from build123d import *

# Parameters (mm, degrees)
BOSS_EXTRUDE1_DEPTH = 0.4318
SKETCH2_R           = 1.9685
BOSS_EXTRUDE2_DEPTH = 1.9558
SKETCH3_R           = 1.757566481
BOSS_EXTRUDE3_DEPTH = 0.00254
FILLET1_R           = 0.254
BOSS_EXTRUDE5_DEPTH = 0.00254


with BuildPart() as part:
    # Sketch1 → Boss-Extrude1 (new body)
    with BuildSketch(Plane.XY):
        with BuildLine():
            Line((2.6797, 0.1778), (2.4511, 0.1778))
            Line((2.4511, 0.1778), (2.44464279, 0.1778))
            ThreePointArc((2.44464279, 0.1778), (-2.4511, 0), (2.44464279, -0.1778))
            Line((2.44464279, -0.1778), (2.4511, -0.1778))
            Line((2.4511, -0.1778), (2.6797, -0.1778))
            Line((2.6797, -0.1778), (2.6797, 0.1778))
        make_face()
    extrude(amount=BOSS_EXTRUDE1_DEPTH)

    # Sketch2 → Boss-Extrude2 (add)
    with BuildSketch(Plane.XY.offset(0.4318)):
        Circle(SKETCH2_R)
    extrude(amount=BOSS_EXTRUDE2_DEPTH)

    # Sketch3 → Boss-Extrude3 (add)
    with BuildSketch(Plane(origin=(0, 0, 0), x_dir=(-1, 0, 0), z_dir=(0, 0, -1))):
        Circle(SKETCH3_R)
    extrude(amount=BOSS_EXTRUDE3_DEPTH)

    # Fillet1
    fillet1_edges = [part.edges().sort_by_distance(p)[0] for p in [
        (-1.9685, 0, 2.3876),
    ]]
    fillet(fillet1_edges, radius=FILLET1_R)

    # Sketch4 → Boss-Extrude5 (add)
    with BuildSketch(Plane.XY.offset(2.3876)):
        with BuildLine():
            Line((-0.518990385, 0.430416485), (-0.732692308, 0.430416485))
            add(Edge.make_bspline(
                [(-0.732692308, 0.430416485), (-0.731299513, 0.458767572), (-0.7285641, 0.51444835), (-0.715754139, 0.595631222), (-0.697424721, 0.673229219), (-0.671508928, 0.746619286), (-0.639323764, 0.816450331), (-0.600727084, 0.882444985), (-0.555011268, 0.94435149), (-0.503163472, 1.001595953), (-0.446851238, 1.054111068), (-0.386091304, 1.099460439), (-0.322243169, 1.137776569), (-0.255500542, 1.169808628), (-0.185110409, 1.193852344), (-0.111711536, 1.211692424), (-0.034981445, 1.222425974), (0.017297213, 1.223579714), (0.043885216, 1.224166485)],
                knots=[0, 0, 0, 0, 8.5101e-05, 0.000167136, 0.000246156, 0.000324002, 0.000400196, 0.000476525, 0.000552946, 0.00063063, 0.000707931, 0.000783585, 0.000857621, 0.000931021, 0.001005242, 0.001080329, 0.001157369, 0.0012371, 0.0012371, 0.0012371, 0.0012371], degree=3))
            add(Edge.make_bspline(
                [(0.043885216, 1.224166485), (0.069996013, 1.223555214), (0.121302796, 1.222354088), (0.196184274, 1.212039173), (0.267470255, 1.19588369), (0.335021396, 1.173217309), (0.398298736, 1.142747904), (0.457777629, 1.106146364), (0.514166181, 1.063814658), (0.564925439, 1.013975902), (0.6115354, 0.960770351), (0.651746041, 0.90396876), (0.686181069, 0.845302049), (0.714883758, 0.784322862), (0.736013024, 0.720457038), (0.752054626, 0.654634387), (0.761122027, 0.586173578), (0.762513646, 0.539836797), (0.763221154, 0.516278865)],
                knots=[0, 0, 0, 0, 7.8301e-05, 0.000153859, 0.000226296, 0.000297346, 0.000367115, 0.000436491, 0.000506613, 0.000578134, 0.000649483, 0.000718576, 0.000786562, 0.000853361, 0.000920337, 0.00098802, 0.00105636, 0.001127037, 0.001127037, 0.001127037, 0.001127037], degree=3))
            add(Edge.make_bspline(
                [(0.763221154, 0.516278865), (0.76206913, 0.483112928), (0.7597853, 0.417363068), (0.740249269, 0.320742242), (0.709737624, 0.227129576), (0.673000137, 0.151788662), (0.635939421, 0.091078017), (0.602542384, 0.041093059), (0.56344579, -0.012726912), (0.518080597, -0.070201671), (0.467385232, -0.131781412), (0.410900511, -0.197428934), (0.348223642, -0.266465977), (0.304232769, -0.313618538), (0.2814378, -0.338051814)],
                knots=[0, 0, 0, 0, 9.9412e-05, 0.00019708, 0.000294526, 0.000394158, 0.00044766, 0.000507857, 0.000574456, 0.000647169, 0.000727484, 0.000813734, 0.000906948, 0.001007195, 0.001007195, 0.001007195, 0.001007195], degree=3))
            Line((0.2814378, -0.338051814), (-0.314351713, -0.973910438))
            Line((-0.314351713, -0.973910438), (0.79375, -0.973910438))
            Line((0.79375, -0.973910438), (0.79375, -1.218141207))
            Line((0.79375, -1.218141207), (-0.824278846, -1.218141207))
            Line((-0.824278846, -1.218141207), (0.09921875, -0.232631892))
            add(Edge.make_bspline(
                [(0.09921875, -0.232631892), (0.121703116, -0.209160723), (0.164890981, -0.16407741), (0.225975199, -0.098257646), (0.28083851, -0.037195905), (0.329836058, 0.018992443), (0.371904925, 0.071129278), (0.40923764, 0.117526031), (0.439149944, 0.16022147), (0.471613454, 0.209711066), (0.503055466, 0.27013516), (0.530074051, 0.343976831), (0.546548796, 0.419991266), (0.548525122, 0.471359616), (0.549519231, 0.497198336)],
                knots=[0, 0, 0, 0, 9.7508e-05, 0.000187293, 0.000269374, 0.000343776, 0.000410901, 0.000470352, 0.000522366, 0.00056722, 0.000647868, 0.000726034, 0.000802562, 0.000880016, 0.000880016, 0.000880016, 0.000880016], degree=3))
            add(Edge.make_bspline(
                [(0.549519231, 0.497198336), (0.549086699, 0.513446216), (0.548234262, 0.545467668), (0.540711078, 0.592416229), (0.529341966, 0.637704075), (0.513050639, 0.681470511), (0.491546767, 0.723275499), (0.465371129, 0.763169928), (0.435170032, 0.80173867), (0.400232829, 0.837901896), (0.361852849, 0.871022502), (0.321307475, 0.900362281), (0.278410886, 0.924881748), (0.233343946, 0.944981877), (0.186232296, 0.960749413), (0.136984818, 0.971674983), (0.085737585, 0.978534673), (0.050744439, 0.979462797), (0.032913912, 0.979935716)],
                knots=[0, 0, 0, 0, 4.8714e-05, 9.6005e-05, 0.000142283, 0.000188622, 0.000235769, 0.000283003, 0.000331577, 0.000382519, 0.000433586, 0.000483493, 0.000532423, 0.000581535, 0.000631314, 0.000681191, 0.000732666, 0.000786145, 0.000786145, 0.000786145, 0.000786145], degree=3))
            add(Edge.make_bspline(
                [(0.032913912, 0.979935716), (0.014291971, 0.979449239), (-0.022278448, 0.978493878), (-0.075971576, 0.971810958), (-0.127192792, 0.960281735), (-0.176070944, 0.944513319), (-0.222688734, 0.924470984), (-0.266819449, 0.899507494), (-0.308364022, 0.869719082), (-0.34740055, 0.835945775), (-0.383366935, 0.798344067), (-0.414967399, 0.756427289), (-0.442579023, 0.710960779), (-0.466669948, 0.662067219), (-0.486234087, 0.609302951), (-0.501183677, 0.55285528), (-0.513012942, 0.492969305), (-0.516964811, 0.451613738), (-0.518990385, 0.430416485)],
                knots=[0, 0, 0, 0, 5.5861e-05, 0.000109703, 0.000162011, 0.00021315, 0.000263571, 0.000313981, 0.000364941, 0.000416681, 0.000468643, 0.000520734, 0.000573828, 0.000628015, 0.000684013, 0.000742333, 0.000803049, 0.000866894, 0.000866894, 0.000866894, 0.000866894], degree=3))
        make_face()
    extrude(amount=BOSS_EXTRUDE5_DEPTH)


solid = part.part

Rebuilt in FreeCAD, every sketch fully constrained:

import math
import FreeCAD as App
import Part
import Sketcher

V = App.Vector
Q = App.Units.Quantity


def edges_at(feature, points):
    """Names of the edges that pass closest to the given points."""
    edges = feature.Shape.Edges
    near = lambda p: min(range(len(edges)), key=lambda i: edges[i].distToShape(Part.Vertex(*p))[0])
    return sorted({f"Edge{near(p) + 1}" for p in points})

doc = App.newDocument("Part")
body = doc.addObject("PartDesign::Body", "Body")

# Sketch on XY plane
sketch1 = body.newObject("Sketcher::SketchObject", "Sketch")
sketch1.AttachmentSupport = (doc.getObject("XY_Plane"), [""])
sketch1.MapMode = "FlatFace"
sketch1.addGeometry(Part.LineSegment(V(2.68, 0.18, 0), V(2.44, 0.18, 0)), False)
sketch1.addGeometry(Part.ArcOfCircle(Part.Circle(V(0, 0, 0), V(0, 0, 1), 2.45), math.radians(4), math.radians(356)), False)
sketch1.addGeometry(Part.LineSegment(V(2.44, -0.18, 0), V(2.68, -0.18, 0)), False)
sketch1.addGeometry(Part.LineSegment(V(2.68, -0.18, 0), V(2.68, 0.18, 0)), False)
sketch1.addConstraint(Sketcher.Constraint("Coincident", 0, 2, 1, 1))
sketch1.addConstraint(Sketcher.Constraint("Coincident", 1, 2, 2, 1))
sketch1.addConstraint(Sketcher.Constraint("Coincident", 2, 2, 3, 1))
sketch1.addConstraint(Sketcher.Constraint("Coincident", 3, 2, 0, 1))
sketch1.addConstraint(Sketcher.Constraint("Horizontal", 0))
sketch1.addConstraint(Sketcher.Constraint("Horizontal", 2))
sketch1.addConstraint(Sketcher.Constraint("Vertical", 3))
sketch1.addConstraint(Sketcher.Constraint("Coincident", 1, 3, -1, 1))
sketch1.addConstraint(Sketcher.Constraint("Vertical", 0, 2, 1, 2))
sketch1.addConstraint(Sketcher.Constraint("Radius", 1, Q("0.0965 in")))
sketch1.addConstraint(Sketcher.Constraint("DistanceY", 3, 1, 3, 2, Q("0.014 in")))
sketch1.addConstraint(Sketcher.Constraint("DistanceX", -1, 1, 2, 2, Q("0.1055 in")))
pad1 = body.newObject("PartDesign::Pad", "Pad")
pad1.Profile = sketch1
pad1.Length = Q("0.017 in")

# Sketch on XY plane
sketch2 = body.newObject("Sketcher::SketchObject", "Sketch001")
sketch2.AttachmentSupport = (doc.getObject("XY_Plane"), [""])
sketch2.MapMode = "FlatFace"
sketch2.AttachmentOffset = App.Placement(V(0, 0, 0.017 * 25.4), App.Rotation())
sketch2.addGeometry(Part.Circle(V(0, 0, 0), V(0, 0, 1), 2), False)
sketch2.addConstraint(Sketcher.Constraint("Coincident", 0, 3, -1, 1))
sketch2.addConstraint(Sketcher.Constraint("Diameter", 0, Q("0.155 in")))
pad2 = body.newObject("PartDesign::Pad", "Pad001")
pad2.Profile = sketch2
pad2.Length = Q("0.077 in")

# Sketch on XY plane
sketch3 = body.newObject("Sketcher::SketchObject", "Sketch002")
sketch3.AttachmentSupport = (doc.getObject("XY_Plane"), [""])
sketch3.MapMode = "FlatFace"
sketch3.addGeometry(Part.Circle(V(0, 0, 0), V(0, 0, 1), 1.8), False)
sketch3.addConstraint(Sketcher.Constraint("Coincident", 0, 3, -1, 1))
sketch3.addConstraint(Sketcher.Constraint("Diameter", 0, 3.515133))
pad3 = body.newObject("PartDesign::Pad", "Pad002")
pad3.Profile = sketch3
pad3.Length = Q("0.0001 in")
pad3.Reversed = True
doc.recompute()

fillet = body.newObject("PartDesign::Fillet", "Fillet")
fillet.Base = (pad3, edges_at(pad3, [(-1.968, 0, 2.388)]))
fillet.Radius = Q("0.01 in")

# Sketch on XY plane
sketch4 = body.newObject("Sketcher::SketchObject", "Sketch003")
sketch4.AttachmentSupport = (doc.getObject("XY_Plane"), [""])
sketch4.MapMode = "FlatFace"
sketch4.AttachmentOffset = App.Placement(V(0, 0, 0.094 * 25.4), App.Rotation())
sketch4.addGeometry(Part.LineSegment(V(-0.732692, 0.430416, 0), V(-0.51899, 0.430416, 0)), False)
sketch4.addGeometry(Part.BSplineCurve([V(0.032914, 0.979936, 0), V(0.014292, 0.979449, 0), V(-0.022278, 0.978494, 0), V(-0.075972, 0.971811, 0), V(-0.127193, 0.960282, 0), V(-0.176071, 0.944513, 0), V(-0.222689, 0.924471, 0), V(-0.266819, 0.899507, 0), V(-0.308364, 0.869719, 0), V(-0.347401, 0.835946, 0), V(-0.383367, 0.798344, 0), V(-0.414967, 0.756427, 0), V(-0.442579, 0.710961, 0), V(-0.46667, 0.662067, 0), V(-0.486234, 0.609303, 0), V(-0.501184, 0.552855, 0), V(-0.513013, 0.492969, 0), V(-0.516965, 0.451614, 0), V(-0.51899, 0.430416, 0)], [4, 1, 1, 1, 1, 1, 1, 1, 1, 1, 1, 1, 1, 1, 1, 1, 4], [0, 0.000055861, 0.000109703, 0.000162011, 0.00021315, 0.000263571, 0.000313981, 0.000364941, 0.000416681, 0.000468643, 0.000520734, 0.000573828, 0.000628015, 0.000684013, 0.000742333, 0.000803049, 0.000866894], False, 3, [1, 1, 1, 1, 1, 1, 1, 1, 1, 1, 1, 1, 1, 1, 1, 1, 1, 1, 1], False), False)
sketch4.addGeometry(Part.BSplineCurve([V(0.549519, 0.497198, 0), V(0.549087, 0.513446, 0), V(0.548234, 0.545468, 0), V(0.540711, 0.592416, 0), V(0.529342, 0.637704, 0), V(0.513051, 0.681471, 0), V(0.491547, 0.723275, 0), V(0.465371, 0.76317, 0), V(0.43517, 0.801739, 0), V(0.400233, 0.837902, 0), V(0.361853, 0.871023, 0), V(0.321307, 0.900362, 0), V(0.278411, 0.924882, 0), V(0.233344, 0.944982, 0), V(0.186232, 0.960749, 0), V(0.136985, 0.971675, 0), V(0.085738, 0.978535, 0), V(0.050744, 0.979463, 0), V(0.032914, 0.979936, 0)], [4, 1, 1, 1, 1, 1, 1, 1, 1, 1, 1, 1, 1, 1, 1, 1, 4], [0, 0.000048714, 0.000096005, 0.000142283, 0.000188622, 0.000235769, 0.000283003, 0.000331577, 0.000382519, 0.000433586, 0.000483493, 0.000532423, 0.000581535, 0.000631314, 0.000681191, 0.000732666, 0.000786145], False, 3, [1, 1, 1, 1, 1, 1, 1, 1, 1, 1, 1, 1, 1, 1, 1, 1, 1, 1, 1], False), False)
sketch4.addGeometry(Part.BSplineCurve([V(0.099219, -0.232632, 0), V(0.121703, -0.209161, 0), V(0.164891, -0.164077, 0), V(0.225975, -0.098258, 0), V(0.280839, -0.037196, 0), V(0.329836, 0.018992, 0), V(0.371905, 0.071129, 0), V(0.409238, 0.117526, 0), V(0.43915, 0.160221, 0), V(0.471613, 0.209711, 0), V(0.503055, 0.270135, 0), V(0.530074, 0.343977, 0), V(0.546549, 0.419991, 0), V(0.548525, 0.47136, 0), V(0.549519, 0.497198, 0)], [4, 1, 1, 1, 1, 1, 1, 1, 1, 1, 1, 1, 4], [0, 0.000097508, 0.000187293, 0.000269374, 0.000343776, 0.000410901, 0.000470352, 0.000522366, 0.00056722, 0.000647868, 0.000726034, 0.000802562, 0.000880016], False, 3, [1, 1, 1, 1, 1, 1, 1, 1, 1, 1, 1, 1, 1, 1, 1], False), False)
sketch4.addGeometry(Part.LineSegment(V(0.099219, -0.232632, 0), V(-0.824279, -1.218141, 0)), False)
sketch4.addGeometry(Part.LineSegment(V(-0.824279, -1.218141, 0), V(0.79375, -1.218141, 0)), False)
sketch4.addGeometry(Part.LineSegment(V(0.79375, -1.218141, 0), V(0.79375, -0.97391, 0)), False)
sketch4.addGeometry(Part.LineSegment(V(0.79375, -0.97391, 0), V(-0.314352, -0.97391, 0)), False)
sketch4.addGeometry(Part.LineSegment(V(-0.314352, -0.97391, 0), V(0.281438, -0.338052, 0)), False)
sketch4.addGeometry(Part.BSplineCurve([V(0.763221, 0.516279, 0), V(0.762069, 0.483113, 0), V(0.759785, 0.417363, 0), V(0.740249, 0.320742, 0), V(0.709738, 0.22713, 0), V(0.673, 0.151789, 0), V(0.635939, 0.091078, 0), V(0.602542, 0.041093, 0), V(0.563446, -0.012727, 0), V(0.518081, -0.070202, 0), V(0.467385, -0.131781, 0), V(0.410901, -0.197429, 0), V(0.348224, -0.266466, 0), V(0.304233, -0.313619, 0), V(0.281438, -0.338052, 0)], [4, 1, 1, 1, 1, 1, 1, 1, 1, 1, 1, 1, 4], [0, 0.000099412, 0.00019708, 0.000294526, 0.000394158, 0.00044766, 0.000507857, 0.000574456, 0.000647169, 0.000727484, 0.000813734, 0.000906948, 0.001007195], False, 3, [1, 1, 1, 1, 1, 1, 1, 1, 1, 1, 1, 1, 1, 1, 1], False), False)
sketch4.addGeometry(Part.BSplineCurve([V(0.043885, 1.224166, 0), V(0.069996, 1.223555, 0), V(0.121303, 1.222354, 0), V(0.196184, 1.212039, 0), V(0.26747, 1.195884, 0), V(0.335021, 1.173217, 0), V(0.398299, 1.142748, 0), V(0.457778, 1.106146, 0), V(0.514166, 1.063815, 0), V(0.564925, 1.013976, 0), V(0.611535, 0.96077, 0), V(0.651746, 0.903969, 0), V(0.686181, 0.845302, 0), V(0.714884, 0.784323, 0), V(0.736013, 0.720457, 0), V(0.752055, 0.654634, 0), V(0.761122, 0.586174, 0), V(0.762514, 0.539837, 0), V(0.763221, 0.516279, 0)], [4, 1, 1, 1, 1, 1, 1, 1, 1, 1, 1, 1, 1, 1, 1, 1, 4], [0, 0.000078301, 0.000153859, 0.000226296, 0.000297346, 0.000367115, 0.000436491, 0.000506613, 0.000578134, 0.000649483, 0.000718576, 0.000786562, 0.000853361, 0.000920337, 0.00098802, 0.00105636, 0.001127037], False, 3, [1, 1, 1, 1, 1, 1, 1, 1, 1, 1, 1, 1, 1, 1, 1, 1, 1, 1, 1], False), False)
sketch4.addGeometry(Part.BSplineCurve([V(-0.732692, 0.430416, 0), V(-0.7313, 0.458768, 0), V(-0.728564, 0.514448, 0), V(-0.715754, 0.595631, 0), V(-0.697425, 0.673229, 0), V(-0.671509, 0.746619, 0), V(-0.639324, 0.81645, 0), V(-0.600727, 0.882445, 0), V(-0.555011, 0.944351, 0), V(-0.503163, 1.001596, 0), V(-0.446851, 1.054111, 0), V(-0.386091, 1.09946, 0), V(-0.322243, 1.137777, 0), V(-0.255501, 1.169809, 0), V(-0.18511, 1.193852, 0), V(-0.111712, 1.211692, 0), V(-0.034981, 1.222426, 0), V(0.017297, 1.22358, 0), V(0.043885, 1.224166, 0)], [4, 1, 1, 1, 1, 1, 1, 1, 1, 1, 1, 1, 1, 1, 1, 1, 4], [0, 0.000085101, 0.000167136, 0.000246156, 0.000324002, 0.000400196, 0.000476525, 0.000552946, 0.00063063, 0.000707931, 0.000783585, 0.000857621, 0.000931021, 0.001005242, 0.001080329, 0.001157369, 0.0012371], False, 3, [1, 1, 1, 1, 1, 1, 1, 1, 1, 1, 1, 1, 1, 1, 1, 1, 1, 1, 1], False), False)
sketch4.addConstraint(Sketcher.Constraint("Block", 1))
sketch4.addConstraint(Sketcher.Constraint("Block", 2))
sketch4.addConstraint(Sketcher.Constraint("Block", 3))
sketch4.addConstraint(Sketcher.Constraint("Block", 9))
sketch4.addConstraint(Sketcher.Constraint("Block", 10))
sketch4.addConstraint(Sketcher.Constraint("Block", 11))
sketch4.addConstraint(Sketcher.Constraint("Coincident", 0, 2, 1, 2))
sketch4.addConstraint(Sketcher.Constraint("Coincident", 3, 1, 4, 1))
sketch4.addConstraint(Sketcher.Constraint("Coincident", 4, 2, 5, 1))
sketch4.addConstraint(Sketcher.Constraint("Coincident", 5, 2, 6, 1))
sketch4.addConstraint(Sketcher.Constraint("Coincident", 6, 2, 7, 1))
sketch4.addConstraint(Sketcher.Constraint("Coincident", 7, 2, 8, 1))
sketch4.addConstraint(Sketcher.Constraint("Coincident", 8, 2, 9, 2))
sketch4.addConstraint(Sketcher.Constraint("Coincident", 11, 1, 0, 1))
sketch4.addConstraint(Sketcher.Constraint("Horizontal", 5))
sketch4.addConstraint(Sketcher.Constraint("Vertical", 6))
sketch4.addConstraint(Sketcher.Constraint("Horizontal", 7))
sketch4.addConstraint(Sketcher.Constraint("DistanceX", -1, 1, 5, 2, Q("0.03125 in")))
sketch4.addConstraint(Sketcher.Constraint("DistanceX", 7, 2, 7, 1, 1.108102))
sketch4.addConstraint(Sketcher.Constraint("DistanceX", 5, 1, 5, 2, 1.618029))
sketch4.addConstraint(Sketcher.Constraint("DistanceY", 6, 1, 6, 2, 0.244231))
sketch4.addConstraint(Sketcher.Constraint("DistanceY", 4, 2, -1, 1, 1.218141))
pad4 = body.newObject("PartDesign::Pad", "Pad003")
pad4.Profile = sketch4
pad4.Length = Q("0.0001 in")

doc.recompute()
